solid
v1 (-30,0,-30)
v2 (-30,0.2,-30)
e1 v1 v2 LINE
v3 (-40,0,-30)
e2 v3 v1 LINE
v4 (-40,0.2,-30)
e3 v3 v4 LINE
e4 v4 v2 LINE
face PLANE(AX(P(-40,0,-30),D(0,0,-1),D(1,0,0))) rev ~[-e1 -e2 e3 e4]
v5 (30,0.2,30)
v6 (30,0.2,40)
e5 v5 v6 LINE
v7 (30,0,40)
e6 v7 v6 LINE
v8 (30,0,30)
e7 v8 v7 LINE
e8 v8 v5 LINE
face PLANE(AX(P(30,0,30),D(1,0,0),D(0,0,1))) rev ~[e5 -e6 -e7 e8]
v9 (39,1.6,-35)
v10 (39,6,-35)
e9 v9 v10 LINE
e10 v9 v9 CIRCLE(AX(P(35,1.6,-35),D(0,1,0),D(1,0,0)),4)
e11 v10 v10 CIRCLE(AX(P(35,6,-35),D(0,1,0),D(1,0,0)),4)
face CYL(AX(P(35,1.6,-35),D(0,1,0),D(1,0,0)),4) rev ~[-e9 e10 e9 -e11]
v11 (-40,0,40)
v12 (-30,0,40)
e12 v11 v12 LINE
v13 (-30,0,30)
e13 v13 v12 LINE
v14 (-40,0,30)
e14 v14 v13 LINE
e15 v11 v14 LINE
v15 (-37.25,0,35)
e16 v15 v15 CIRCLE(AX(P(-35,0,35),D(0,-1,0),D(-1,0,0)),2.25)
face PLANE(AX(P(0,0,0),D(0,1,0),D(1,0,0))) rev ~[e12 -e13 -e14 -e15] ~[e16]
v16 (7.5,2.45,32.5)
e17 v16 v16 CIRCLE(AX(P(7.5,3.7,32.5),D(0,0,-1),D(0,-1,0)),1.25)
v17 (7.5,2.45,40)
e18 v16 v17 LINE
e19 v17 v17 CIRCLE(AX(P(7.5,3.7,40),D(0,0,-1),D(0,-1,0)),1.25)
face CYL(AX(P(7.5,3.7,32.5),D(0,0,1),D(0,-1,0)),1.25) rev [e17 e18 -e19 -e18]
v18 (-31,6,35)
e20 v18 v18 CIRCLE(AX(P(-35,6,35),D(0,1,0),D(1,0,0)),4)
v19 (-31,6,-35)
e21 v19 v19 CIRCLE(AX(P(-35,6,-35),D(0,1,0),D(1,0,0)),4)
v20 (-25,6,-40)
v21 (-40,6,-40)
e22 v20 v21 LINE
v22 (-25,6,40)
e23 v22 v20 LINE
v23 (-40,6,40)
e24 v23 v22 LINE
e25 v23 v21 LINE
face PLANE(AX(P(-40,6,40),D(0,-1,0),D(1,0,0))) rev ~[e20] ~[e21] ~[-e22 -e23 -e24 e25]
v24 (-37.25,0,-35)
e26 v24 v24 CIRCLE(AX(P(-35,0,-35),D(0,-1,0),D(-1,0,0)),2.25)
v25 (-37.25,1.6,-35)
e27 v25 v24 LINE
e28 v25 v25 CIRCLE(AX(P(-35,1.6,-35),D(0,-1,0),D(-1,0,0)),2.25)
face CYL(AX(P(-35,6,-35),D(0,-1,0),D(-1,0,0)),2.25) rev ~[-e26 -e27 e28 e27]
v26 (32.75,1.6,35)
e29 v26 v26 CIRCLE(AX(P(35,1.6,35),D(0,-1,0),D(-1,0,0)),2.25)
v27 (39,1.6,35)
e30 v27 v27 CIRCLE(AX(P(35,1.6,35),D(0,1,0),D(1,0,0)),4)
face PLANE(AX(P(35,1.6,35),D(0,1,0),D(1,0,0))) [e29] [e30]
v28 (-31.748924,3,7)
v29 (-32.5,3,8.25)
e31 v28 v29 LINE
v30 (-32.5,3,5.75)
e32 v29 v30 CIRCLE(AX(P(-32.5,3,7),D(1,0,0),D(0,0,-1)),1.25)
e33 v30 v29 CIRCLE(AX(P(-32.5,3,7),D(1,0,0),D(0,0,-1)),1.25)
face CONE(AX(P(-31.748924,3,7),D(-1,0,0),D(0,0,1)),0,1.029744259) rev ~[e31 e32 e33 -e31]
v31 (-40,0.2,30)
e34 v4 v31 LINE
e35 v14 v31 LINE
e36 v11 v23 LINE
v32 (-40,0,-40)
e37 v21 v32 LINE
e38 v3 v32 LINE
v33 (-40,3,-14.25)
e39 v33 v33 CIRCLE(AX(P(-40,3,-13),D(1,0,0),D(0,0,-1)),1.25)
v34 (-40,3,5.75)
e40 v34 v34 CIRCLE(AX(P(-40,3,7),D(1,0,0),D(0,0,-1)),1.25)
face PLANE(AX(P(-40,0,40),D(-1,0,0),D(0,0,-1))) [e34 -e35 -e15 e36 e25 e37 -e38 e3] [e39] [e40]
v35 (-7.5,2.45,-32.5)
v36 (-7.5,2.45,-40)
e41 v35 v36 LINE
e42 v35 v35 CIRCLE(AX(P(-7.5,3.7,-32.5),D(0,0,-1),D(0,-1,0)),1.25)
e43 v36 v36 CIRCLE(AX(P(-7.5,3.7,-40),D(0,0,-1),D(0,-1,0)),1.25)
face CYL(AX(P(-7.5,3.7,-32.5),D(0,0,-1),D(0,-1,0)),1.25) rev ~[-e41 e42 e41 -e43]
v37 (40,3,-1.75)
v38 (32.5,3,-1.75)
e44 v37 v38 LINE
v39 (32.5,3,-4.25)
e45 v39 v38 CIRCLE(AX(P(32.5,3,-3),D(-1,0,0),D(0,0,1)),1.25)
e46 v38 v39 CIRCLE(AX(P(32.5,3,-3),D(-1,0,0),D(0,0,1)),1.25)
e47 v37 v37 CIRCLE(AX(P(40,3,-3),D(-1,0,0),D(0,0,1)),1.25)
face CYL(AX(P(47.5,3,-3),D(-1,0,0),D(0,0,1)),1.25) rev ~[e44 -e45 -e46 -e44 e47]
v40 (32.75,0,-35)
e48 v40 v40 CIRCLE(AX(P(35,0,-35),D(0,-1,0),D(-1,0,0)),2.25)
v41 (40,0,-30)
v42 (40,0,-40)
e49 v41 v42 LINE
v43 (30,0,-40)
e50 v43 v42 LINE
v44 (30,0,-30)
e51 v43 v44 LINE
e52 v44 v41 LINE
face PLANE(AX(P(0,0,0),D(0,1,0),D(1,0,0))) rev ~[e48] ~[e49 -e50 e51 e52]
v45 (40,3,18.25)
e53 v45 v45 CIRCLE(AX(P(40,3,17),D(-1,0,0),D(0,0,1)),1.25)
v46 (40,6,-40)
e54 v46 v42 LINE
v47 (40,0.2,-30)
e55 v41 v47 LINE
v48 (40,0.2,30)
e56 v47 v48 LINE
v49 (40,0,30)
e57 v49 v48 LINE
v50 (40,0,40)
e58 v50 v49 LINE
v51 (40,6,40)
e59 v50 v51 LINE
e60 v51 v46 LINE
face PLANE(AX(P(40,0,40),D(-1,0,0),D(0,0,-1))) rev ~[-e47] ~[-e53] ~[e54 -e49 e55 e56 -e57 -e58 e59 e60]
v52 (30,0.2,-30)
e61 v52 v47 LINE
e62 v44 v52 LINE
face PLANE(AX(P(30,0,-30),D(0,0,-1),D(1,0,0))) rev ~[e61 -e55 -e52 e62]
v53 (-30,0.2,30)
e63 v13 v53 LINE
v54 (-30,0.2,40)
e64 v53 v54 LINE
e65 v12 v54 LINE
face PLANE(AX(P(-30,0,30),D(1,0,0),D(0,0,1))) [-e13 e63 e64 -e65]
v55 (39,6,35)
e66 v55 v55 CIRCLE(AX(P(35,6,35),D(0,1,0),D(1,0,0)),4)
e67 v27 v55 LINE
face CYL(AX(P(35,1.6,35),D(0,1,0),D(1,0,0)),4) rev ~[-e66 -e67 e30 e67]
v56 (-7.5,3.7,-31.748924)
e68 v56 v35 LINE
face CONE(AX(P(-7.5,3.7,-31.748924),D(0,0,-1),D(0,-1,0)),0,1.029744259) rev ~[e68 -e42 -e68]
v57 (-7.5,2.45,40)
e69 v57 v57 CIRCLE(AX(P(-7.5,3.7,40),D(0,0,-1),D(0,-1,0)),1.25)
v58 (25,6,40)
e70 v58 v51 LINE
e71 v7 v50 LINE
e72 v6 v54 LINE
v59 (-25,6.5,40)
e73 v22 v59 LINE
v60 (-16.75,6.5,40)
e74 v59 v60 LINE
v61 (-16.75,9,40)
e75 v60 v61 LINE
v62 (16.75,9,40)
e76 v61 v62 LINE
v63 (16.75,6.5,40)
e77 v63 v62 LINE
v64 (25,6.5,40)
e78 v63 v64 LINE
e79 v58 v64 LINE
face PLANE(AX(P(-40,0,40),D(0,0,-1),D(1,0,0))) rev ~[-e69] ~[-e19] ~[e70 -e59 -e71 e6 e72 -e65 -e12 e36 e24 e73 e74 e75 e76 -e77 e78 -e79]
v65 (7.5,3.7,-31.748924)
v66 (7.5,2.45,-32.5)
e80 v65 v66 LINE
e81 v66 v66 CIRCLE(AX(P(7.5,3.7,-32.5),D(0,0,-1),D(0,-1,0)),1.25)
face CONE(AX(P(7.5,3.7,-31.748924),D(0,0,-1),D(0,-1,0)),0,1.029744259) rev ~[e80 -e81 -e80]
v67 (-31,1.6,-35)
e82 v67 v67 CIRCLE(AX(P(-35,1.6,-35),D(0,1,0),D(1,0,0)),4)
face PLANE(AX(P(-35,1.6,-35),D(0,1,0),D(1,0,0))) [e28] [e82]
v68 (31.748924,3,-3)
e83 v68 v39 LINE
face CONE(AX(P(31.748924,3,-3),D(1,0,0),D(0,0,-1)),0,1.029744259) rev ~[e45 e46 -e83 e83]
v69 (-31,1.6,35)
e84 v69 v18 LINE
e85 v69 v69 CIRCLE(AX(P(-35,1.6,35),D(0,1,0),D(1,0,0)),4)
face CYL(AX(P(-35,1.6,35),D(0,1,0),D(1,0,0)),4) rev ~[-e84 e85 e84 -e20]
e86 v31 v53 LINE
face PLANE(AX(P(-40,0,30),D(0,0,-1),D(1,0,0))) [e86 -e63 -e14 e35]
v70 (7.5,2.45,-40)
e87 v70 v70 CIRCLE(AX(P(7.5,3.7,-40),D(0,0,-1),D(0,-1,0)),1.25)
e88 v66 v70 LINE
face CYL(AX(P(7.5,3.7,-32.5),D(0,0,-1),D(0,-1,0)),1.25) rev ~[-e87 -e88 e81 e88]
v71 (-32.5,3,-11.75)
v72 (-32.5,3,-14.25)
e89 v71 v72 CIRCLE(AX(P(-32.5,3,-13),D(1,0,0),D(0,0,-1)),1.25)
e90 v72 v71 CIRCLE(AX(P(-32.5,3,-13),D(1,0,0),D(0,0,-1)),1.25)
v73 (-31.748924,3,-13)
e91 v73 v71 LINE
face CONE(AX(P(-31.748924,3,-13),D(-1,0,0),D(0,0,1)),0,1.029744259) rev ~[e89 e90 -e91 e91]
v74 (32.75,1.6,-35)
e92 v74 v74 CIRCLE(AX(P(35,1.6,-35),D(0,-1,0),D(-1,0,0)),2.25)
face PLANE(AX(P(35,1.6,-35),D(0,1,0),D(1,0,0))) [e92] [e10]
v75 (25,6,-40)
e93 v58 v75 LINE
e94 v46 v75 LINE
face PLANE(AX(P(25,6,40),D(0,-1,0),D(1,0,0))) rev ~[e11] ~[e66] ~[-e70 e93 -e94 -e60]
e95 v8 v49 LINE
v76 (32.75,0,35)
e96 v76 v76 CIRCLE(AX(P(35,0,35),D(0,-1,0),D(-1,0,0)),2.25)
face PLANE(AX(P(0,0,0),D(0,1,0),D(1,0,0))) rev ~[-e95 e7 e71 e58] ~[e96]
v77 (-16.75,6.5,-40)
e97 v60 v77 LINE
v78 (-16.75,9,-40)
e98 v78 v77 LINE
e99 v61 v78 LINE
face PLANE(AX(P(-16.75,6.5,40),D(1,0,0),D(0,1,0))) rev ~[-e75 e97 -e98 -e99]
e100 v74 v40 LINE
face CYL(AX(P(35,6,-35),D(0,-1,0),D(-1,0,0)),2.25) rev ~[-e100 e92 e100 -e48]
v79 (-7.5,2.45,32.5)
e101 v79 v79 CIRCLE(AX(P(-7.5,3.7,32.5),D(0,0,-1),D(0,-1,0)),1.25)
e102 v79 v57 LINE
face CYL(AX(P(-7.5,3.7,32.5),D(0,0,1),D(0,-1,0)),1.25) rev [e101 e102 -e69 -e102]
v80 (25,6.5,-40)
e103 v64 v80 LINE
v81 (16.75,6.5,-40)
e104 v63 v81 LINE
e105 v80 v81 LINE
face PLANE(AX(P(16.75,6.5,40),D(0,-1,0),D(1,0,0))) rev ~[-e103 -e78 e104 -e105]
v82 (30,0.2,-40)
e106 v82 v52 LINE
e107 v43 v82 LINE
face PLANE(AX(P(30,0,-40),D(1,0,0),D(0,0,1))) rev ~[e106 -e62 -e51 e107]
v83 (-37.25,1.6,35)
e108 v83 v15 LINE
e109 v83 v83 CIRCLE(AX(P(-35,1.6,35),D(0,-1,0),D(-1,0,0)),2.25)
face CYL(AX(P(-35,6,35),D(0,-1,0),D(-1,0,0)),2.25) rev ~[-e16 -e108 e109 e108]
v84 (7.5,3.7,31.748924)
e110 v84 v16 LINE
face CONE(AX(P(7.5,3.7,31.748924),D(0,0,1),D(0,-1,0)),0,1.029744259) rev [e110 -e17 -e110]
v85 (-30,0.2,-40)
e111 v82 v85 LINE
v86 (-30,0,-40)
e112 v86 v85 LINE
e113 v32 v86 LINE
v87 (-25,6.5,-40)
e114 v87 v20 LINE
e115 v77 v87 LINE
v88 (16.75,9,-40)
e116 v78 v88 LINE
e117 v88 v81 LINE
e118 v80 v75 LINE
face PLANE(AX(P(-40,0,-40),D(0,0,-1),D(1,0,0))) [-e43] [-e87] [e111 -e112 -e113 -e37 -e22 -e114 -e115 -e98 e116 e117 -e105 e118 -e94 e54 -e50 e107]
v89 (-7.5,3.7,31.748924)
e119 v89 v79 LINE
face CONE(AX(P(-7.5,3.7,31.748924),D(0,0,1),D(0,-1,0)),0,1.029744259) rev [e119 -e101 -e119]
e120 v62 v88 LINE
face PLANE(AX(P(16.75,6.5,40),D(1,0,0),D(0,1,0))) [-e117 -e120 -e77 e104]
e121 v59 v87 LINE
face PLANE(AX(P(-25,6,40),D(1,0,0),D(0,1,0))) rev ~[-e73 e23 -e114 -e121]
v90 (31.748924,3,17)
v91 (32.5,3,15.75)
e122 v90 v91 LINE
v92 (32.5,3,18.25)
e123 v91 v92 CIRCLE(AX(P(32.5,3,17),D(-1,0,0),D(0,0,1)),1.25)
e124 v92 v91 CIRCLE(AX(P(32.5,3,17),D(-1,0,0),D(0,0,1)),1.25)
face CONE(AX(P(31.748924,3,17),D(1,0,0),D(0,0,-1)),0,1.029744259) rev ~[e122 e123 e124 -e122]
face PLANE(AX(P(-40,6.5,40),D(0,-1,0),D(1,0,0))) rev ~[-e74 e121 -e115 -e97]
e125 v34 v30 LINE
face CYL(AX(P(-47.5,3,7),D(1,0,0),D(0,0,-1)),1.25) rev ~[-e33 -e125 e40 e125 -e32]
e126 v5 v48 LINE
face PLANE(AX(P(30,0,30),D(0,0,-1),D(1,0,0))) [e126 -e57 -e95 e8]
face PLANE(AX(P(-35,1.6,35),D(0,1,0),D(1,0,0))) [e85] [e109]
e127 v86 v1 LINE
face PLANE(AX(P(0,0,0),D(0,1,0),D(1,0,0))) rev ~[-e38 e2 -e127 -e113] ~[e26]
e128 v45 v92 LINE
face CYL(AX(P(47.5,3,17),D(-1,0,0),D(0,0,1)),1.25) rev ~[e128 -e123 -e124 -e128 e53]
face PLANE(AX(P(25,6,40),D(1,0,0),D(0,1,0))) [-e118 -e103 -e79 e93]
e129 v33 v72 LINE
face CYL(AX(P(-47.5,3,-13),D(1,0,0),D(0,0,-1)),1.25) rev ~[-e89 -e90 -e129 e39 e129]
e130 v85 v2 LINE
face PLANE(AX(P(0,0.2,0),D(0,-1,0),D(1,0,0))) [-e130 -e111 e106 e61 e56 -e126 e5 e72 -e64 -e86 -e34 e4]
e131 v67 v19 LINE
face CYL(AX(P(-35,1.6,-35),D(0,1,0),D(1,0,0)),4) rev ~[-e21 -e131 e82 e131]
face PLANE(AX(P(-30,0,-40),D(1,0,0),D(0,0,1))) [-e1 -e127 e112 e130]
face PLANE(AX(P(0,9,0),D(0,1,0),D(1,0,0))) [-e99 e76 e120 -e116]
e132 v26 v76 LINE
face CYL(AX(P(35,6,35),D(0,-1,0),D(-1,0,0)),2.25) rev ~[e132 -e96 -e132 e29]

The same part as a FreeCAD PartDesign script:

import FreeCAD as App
import Part
import Sketcher
Q = App.Units.Quantity


def add_polygon(sketch, points):
    """Adds a closed chain of lines whose ends are joined by coincident constraints."""
    first, n = sketch.GeometryCount, len(points)
    for a, b in zip(points, points[1:] + points[:1]):
        sketch.addGeometry(Part.LineSegment(App.Vector(*a, 0), App.Vector(*b, 0)), False)
    for i in range(n):
        sketch.addConstraint(Sketcher.Constraint("Coincident", first + i, 2, first + (i + 1) % n, 1))

doc = App.newDocument("Part")
body = doc.addObject("PartDesign::Body", "Body")

# Sketch on XZ plane
sketch1 = body.newObject("Sketcher::SketchObject", "Sketch")
sketch1.AttachmentSupport = (doc.getObject("XZ_Plane"), [""])
sketch1.MapMode = "FlatFace"
add_polygon(sketch1, [(-40, -40), (-40, 40), (40, 40), (40, -40)])  # lines 0-3
sketch1.addConstraint([
    Sketcher.Constraint("Vertical", 0),
    Sketcher.Constraint("Horizontal", 1),
    Sketcher.Constraint("Vertical", 2),
    Sketcher.Constraint("Horizontal", 3),
    Sketcher.Constraint("Symmetric", 0, 2, 2, 2, -1, 1),
    Sketcher.Constraint("Equal", 3, 0),
    Sketcher.Constraint("DistanceX", 1, 1, 1, 2, Q("80 mm")),
])
pad1 = body.newObject("PartDesign::Pad", "Pad")
pad1.Profile = sketch1
pad1.Length = 9
pad1.Reversed = True

# Sketch on XY plane
sketch2 = body.newObject("Sketcher::SketchObject", "Sketch001")
sketch2.AttachmentSupport = (doc.getObject("XY_Plane"), [""])
sketch2.MapMode = "FlatFace"
sketch2.AttachmentOffset = App.Placement(App.Vector(0, 0, 40), App.Rotation())
add_polygon(sketch2, [(16.8, 9), (16.8, 6.5), (40, 6.5), (40, 9)])  # lines 0-3
add_polygon(sketch2, [(-40, 9), (-40, 6.5), (-16.8, 6.5), (-16.8, 9)])  # lines 4-7
sketch2.addConstraint([
    Sketcher.Constraint("Vertical", 0),
    Sketcher.Constraint("Horizontal", 1),
    Sketcher.Constraint("Vertical", 2),
    Sketcher.Constraint("Horizontal", 3),
    Sketcher.Constraint("Vertical", 4),
    Sketcher.Constraint("Horizontal", 5),
    Sketcher.Constraint("Vertical", 6),
    Sketcher.Constraint("Horizontal", 7),
    Sketcher.Constraint("Symmetric", 1, 2, 4, 2, -2),
    Sketcher.Constraint("Symmetric", 3, 2, 6, 2, -2),
    Sketcher.Constraint("DistanceY", 0, 2, 0, 1, Q("2.5 mm")),
    Sketcher.Constraint("DistanceX", -1, 1, 1, 2, Q("40 mm")),
    Sketcher.Constraint("DistanceY", -1, 1, 2, 2, Q("9 mm")),
    Sketcher.Constraint("DistanceX", 1, 1, 1, 2, Q("23.25 mm")),
])
pocket1 = body.newObject("PartDesign::Pocket", "Pocket")
pocket1.Profile = sketch2
pocket1.Type = "ThroughAll"

# Sketch on XY plane
sketch3 = body.newObject("Sketcher::SketchObject", "Sketch002")
sketch3.AttachmentSupport = (doc.getObject("XY_Plane"), [""])
sketch3.MapMode = "FlatFace"
sketch3.AttachmentOffset = App.Placement(App.Vector(0, 0, 40), App.Rotation())
add_polygon(sketch3, [(25, 6.5), (25, 6), (40, 6), (40, 6.5)])  # lines 0-3
add_polygon(sketch3, [(-40, 6.5), (-40, 6), (-25, 6), (-25, 6.5)])  # lines 4-7
sketch3.addConstraint([
    Sketcher.Constraint("Vertical", 0),
    Sketcher.Constraint("Horizontal", 1),
    Sketcher.Constraint("Vertical", 2),
    Sketcher.Constraint("Horizontal", 3),
    Sketcher.Constraint("Vertical", 4),
    Sketcher.Constraint("Horizontal", 5),
    Sketcher.Constraint("Vertical", 6),
    Sketcher.Constraint("Horizontal", 7),
    Sketcher.Constraint("Symmetric", 1, 2, 4, 2, -2),
    Sketcher.Constraint("Symmetric", 3, 2, 6, 2, -2),
    Sketcher.Constraint("DistanceX", 1, 1, 1, 2, Q("15 mm")),
    Sketcher.Constraint("DistanceY", 0, 2, 0, 1, Q("0.5 mm")),
    Sketcher.Constraint("DistanceX", -1, 1, 0, 2, Q("25 mm")),
    Sketcher.Constraint("DistanceY", -1, 1, 0, 2, Q("6 mm")),
])
pocket2 = body.newObject("PartDesign::Pocket", "Pocket001")
pocket2.Profile = sketch3
pocket2.Type = "ThroughAll"

# Sketch on XZ plane
sketch4 = body.newObject("Sketcher::SketchObject", "Sketch003")
sketch4.AttachmentSupport = (doc.getObject("XZ_Plane"), [""])
sketch4.MapMode = "FlatFace"
sketch4.AttachmentOffset = App.Placement(App.Vector(0, 0, -6), App.Rotation())
sketch4.addGeometry([
    Part.Circle(App.Vector(-35, -35, 0), App.Vector(0, 0, 1), 2.2),
    Part.Circle(App.Vector(35, -35, 0), App.Vector(0, 0, 1), 2.2),
    Part.Circle(App.Vector(35, 35, 0), App.Vector(0, 0, 1), 2.2),
    Part.Circle(App.Vector(-35, 35, 0), App.Vector(0, 0, 1), 2.2),
], False)
sketch4.addConstraint([
    Sketcher.Constraint("Equal", 0, 1),
    Sketcher.Constraint("Equal", 1, 2),
    Sketcher.Constraint("Equal", 2, 3),
    Sketcher.Constraint("Symmetric", 0, 3, 2, 3, -1, 1),
    Sketcher.Constraint("Symmetric", 1, 3, 3, 3, -1, 1),
    Sketcher.Constraint("Symmetric", 0, 3, 1, 3, -2),
    Sketcher.Constraint("Diameter", 0, Q("4.5 mm")),
    Sketcher.Constraint("DistanceX", 0, 3, -1, 1, Q("35 mm")),
    Sketcher.Constraint("DistanceY", 0, 3, -1, 1, Q("35 mm")),
])
doc.recompute()
hole = body.newObject("PartDesign::Hole", "Hole")
hole.Profile = sketch4
hole.ThreadType = "None"
hole.Diameter = 4.5
hole.DepthType = "ThroughAll"
hole.HoleCutType = "Counterbore"
hole.HoleCutDiameter = 8
hole.HoleCutDepth = 4.4
hole.Reversed = True

# Sketch on YZ plane
sketch5 = body.newObject("Sketcher::SketchObject", "Sketch004")
sketch5.AttachmentSupport = (doc.getObject("YZ_Plane"), [""])
sketch5.MapMode = "FlatFace"
sketch5.AttachmentOffset = App.Placement(App.Vector(0, 0, -40), App.Rotation())
sketch5.addGeometry([
    Part.Circle(App.Vector(3, 7, 0), App.Vector(0, 0, 1), 1.2),
    Part.Circle(App.Vector(3, -13, 0), App.Vector(0, 0, 1), 1.2),
], False)
sketch5.addConstraint([
    Sketcher.Constraint("Equal", 0, 1),
    Sketcher.Constraint("Vertical", 0, 3, 1, 3),
    Sketcher.Constraint("Diameter", 0, Q("2.5 mm")),
    Sketcher.Constraint("DistanceX", -1, 1, 0, 3, Q("3 mm")),
    Sketcher.Constraint("DistanceY", -1, 1, 0, 3, Q("7 mm")),
    Sketcher.Constraint("DistanceY", 1, 3, -1, 1, Q("13 mm")),
])
doc.recompute()
hole2 = body.newObject("PartDesign::Hole", "Hole001")
hole2.Profile = sketch5
hole2.ThreadType = "None"
hole2.Diameter = 2.5
hole2.DepthType = "Dimension"
hole2.Depth = 7.5
hole2.DrillPoint = "Angled"
hole2.DrillPointAngle = 118
hole2.Reversed = True

# Sketch on YZ plane
sketch6 = body.newObject("Sketcher::SketchObject", "Sketch005")
sketch6.AttachmentSupport = (doc.getObject("YZ_Plane"), [""])
sketch6.MapMode = "FlatFace"
sketch6.AttachmentOffset = App.Placement(App.Vector(0, 0, 40), App.Rotation())
sketch6.addGeometry([
    Part.Circle(App.Vector(3, -3, 0), App.Vector(0, 0, 1), 1.2),
    Part.Circle(App.Vector(3, 17, 0), App.Vector(0, 0, 1), 1.2),
], False)
sketch6.addConstraint([
    Sketcher.Constraint("Equal", 0, 1),
    Sketcher.Constraint("Vertical", 0, 3, 1, 3),
    Sketcher.Constraint("Diameter", 0, Q("2.5 mm")),
    Sketcher.Constraint("DistanceX", -1, 1, 0, 3, Q("3 mm")),
    Sketcher.Constraint("DistanceY", 0, 3, -1, 1, Q("3 mm")),
    Sketcher.Constraint("DistanceY", -1, 1, 1, 3, Q("17 mm")),
])
doc.recompute()
hole3 = body.newObject("PartDesign::Hole", "Hole002")
hole3.Profile = sketch6
hole3.ThreadType = "None"
hole3.Diameter = 2.5
hole3.DepthType = "Dimension"
hole3.Depth = 7.5
hole3.DrillPoint = "Angled"
hole3.DrillPointAngle = 118

# Sketch on XZ plane
sketch7 = body.newObject("Sketcher::SketchObject", "Sketch006")
sketch7.AttachmentSupport = (doc.getObject("XZ_Plane"), [""])
sketch7.MapMode = "FlatFace"
add_polygon(sketch7, [(-52, 52), (-52, -52), (52, -52), (52, 52)])  # lines 0-3
add_polygon(sketch7, [(-30, -40), (-40, -40), (-40, -30), (-30, -30)])  # lines 4-7
add_polygon(sketch7, [(40, -40), (30, -40), (30, -30), (40, -30)])  # lines 8-11
add_polygon(sketch7, [(-30, 30), (-40, 30), (-40, 40), (-30, 40)])  # lines 12-15
add_polygon(sketch7, [(40, 30), (30, 30), (30, 40), (40, 40)])  # lines 16-19
sketch7.addConstraint([
    Sketcher.Constraint("Vertical", 0),
    Sketcher.Constraint("Horizontal", 1),
    Sketcher.Constraint("Vertical", 2),
    Sketcher.Constraint("Horizontal", 3),
    Sketcher.Constraint("Horizontal", 4),
    Sketcher.Constraint("Vertical", 5),
    Sketcher.Constraint("Horizontal", 6),
    Sketcher.Constraint("Vertical", 7),
    Sketcher.Constraint("Horizontal", 8),
    Sketcher.Constraint("Vertical", 9),
    Sketcher.Constraint("Horizontal", 10),
    Sketcher.Constraint("Vertical", 11),
    Sketcher.Constraint("Horizontal", 12),
    Sketcher.Constraint("Vertical", 13),
    Sketcher.Constraint("Horizontal", 14),
    Sketcher.Constraint("Vertical", 15),
    Sketcher.Constraint("Horizontal", 16),
    Sketcher.Constraint("Vertical", 17),
    Sketcher.Constraint("Horizontal", 18),
    Sketcher.Constraint("Vertical", 19),
    Sketcher.Constraint("Symmetric", 0, 2, 2, 2, -1, 1),
    Sketcher.Constraint("Symmetric", 10, 2, 12, 2, -1, 1),
    Sketcher.Constraint("Symmetric", 8, 2, 14, 2, -1, 1),
    Sketcher.Constraint("Symmetric", 6, 2, 16, 2, -1, 1),
    Sketcher.Constraint("Symmetric", 4, 2, 18, 2, -1, 1),
    Sketcher.Constraint("Symmetric", 7, 2, 8, 2, -2),
    Sketcher.Constraint("Symmetric", 5, 2, 10, 2, -2),
    Sketcher.Constraint("Equal", 3, 0),
    Sketcher.Constraint("Equal", 18, 5),
    Sketcher.Constraint("DistanceX", 4, 2, 4, 1, Q("10 mm")),
    Sketcher.Constraint("DistanceX", 4, 2, -1, 1, Q("40 mm")),
    Sketcher.Constraint("DistanceY", 4, 2, -1, 1, Q("40 mm")),
    Sketcher.Constraint("DistanceX", 1, 1, 1, 2, Q("104.698 mm")),
])
pocket3 = body.newObject("PartDesign::Pocket", "Pocket002")
pocket3.Profile = sketch7
pocket3.Length = 0.2

# Sketch on YZ plane
sketch8 = body.newObject("Sketcher::SketchObject", "Sketch007")
sketch8.AttachmentSupport = (doc.getObject("YZ_Plane"), [""])
sketch8.MapMode = "FlatFace"
sketch8.AttachmentOffset = App.Placement(App.Vector(0, 0, -7.5), App.Rotation())
add_polygon(sketch8, [(3.7, 31.7), (3.7, 40), (2.5, 40), (2.5, 32.5)])  # lines 0-3
sketch8.addGeometry(Part.LineSegment(App.Vector(3.7, 40, 0), App.Vector(3.7, 31.7, 0)), True)  # axis
sketch8.addConstraint([
    Sketcher.Constraint("Vertical", 0),
    Sketcher.Constraint("Horizontal", 1),
    Sketcher.Constraint("Vertical", 2),
    Sketcher.Constraint("Vertical", 4),
    Sketcher.Constraint("Coincident", 4, 1, 0, 2),
    Sketcher.Constraint("Equal", 0, 4),
    Sketcher.Constraint("Angle", 3, Q("-31 deg")),
    Sketcher.Constraint("DistanceY", 2, 2, 2, 1, Q("7.5 mm")),
    Sketcher.Constraint("DistanceY", -1, 1, 0, 2, Q("40 mm")),
    Sketcher.Constraint("DistanceX", 1, 2, 1, 1, Q("1.25 mm")),
    Sketcher.Constraint("DistanceX", -1, 1, 0, 2, Q("3.7 mm")),
])
groove = body.newObject("PartDesign::Groove", "Groove")
groove.Profile = sketch8
groove.ReferenceAxis = (sketch8, ["Axis0"])
groove.Angle = 360
doc.recompute()

linearpattern = body.newObject("PartDesign::LinearPattern", "LinearPattern")
linearpattern.Originals = [groove]
linearpattern.Direction = (doc.getObject("X_Axis"), [""])
linearpattern.Mode = "offset"
linearpattern.Offset = 15
linearpattern.Occurrences = 2
body.Tip = linearpattern
doc.recompute()

mirrored = body.newObject("PartDesign::Mirrored", "Mirrored")
mirrored.Originals = [groove]
mirrored.MirrorPlane = (doc.getObject("XY_Plane"), [""])
body.Tip = mirrored

# Sketch on YZ plane
sketch9 = body.newObject("Sketcher::SketchObject", "Sketch008")
sketch9.AttachmentSupport = (doc.getObject("YZ_Plane"), [""])
sketch9.MapMode = "FlatFace"
sketch9.AttachmentOffset = App.Placement(App.Vector(0, 0, 7.5), App.Rotation())
add_polygon(sketch9, [(3.7, -40), (3.7, -31.7), (2.5, -32.5), (2.5, -40)])  # lines 0-3
sketch9.addGeometry(Part.LineSegment(App.Vector(3.7, -31.7, 0), App.Vector(3.7, -40, 0)), True)  # axis
sketch9.addConstraint([
    Sketcher.Constraint("Vertical", 0),
    Sketcher.Constraint("Vertical", 2),
    Sketcher.Constraint("Horizontal", 3),
    Sketcher.Constraint("Vertical", 4),
    Sketcher.Constraint("Coincident", 4, 1, 0, 2),
    Sketcher.Constraint("Horizontal", 2, 2, 4, 2),
    Sketcher.Constraint("Angle", 1, Q("-149 deg")),
    Sketcher.Constraint("DistanceY", 2, 2, 2, 1, Q("7.5 mm")),
    Sketcher.Constraint("DistanceY", 2, 2, -1, 1, Q("40 mm")),
    Sketcher.Constraint("DistanceX", 3, 1, 3, 2, Q("1.25 mm")),
    Sketcher.Constraint("DistanceX", -1, 1, 0, 2, Q("3.7 mm")),
])
groove2 = body.newObject("PartDesign::Groove", "Groove001")
groove2.Profile = sketch9
groove2.ReferenceAxis = (sketch9, ["Axis0"])
groove2.Angle = 360

doc.recompute()
